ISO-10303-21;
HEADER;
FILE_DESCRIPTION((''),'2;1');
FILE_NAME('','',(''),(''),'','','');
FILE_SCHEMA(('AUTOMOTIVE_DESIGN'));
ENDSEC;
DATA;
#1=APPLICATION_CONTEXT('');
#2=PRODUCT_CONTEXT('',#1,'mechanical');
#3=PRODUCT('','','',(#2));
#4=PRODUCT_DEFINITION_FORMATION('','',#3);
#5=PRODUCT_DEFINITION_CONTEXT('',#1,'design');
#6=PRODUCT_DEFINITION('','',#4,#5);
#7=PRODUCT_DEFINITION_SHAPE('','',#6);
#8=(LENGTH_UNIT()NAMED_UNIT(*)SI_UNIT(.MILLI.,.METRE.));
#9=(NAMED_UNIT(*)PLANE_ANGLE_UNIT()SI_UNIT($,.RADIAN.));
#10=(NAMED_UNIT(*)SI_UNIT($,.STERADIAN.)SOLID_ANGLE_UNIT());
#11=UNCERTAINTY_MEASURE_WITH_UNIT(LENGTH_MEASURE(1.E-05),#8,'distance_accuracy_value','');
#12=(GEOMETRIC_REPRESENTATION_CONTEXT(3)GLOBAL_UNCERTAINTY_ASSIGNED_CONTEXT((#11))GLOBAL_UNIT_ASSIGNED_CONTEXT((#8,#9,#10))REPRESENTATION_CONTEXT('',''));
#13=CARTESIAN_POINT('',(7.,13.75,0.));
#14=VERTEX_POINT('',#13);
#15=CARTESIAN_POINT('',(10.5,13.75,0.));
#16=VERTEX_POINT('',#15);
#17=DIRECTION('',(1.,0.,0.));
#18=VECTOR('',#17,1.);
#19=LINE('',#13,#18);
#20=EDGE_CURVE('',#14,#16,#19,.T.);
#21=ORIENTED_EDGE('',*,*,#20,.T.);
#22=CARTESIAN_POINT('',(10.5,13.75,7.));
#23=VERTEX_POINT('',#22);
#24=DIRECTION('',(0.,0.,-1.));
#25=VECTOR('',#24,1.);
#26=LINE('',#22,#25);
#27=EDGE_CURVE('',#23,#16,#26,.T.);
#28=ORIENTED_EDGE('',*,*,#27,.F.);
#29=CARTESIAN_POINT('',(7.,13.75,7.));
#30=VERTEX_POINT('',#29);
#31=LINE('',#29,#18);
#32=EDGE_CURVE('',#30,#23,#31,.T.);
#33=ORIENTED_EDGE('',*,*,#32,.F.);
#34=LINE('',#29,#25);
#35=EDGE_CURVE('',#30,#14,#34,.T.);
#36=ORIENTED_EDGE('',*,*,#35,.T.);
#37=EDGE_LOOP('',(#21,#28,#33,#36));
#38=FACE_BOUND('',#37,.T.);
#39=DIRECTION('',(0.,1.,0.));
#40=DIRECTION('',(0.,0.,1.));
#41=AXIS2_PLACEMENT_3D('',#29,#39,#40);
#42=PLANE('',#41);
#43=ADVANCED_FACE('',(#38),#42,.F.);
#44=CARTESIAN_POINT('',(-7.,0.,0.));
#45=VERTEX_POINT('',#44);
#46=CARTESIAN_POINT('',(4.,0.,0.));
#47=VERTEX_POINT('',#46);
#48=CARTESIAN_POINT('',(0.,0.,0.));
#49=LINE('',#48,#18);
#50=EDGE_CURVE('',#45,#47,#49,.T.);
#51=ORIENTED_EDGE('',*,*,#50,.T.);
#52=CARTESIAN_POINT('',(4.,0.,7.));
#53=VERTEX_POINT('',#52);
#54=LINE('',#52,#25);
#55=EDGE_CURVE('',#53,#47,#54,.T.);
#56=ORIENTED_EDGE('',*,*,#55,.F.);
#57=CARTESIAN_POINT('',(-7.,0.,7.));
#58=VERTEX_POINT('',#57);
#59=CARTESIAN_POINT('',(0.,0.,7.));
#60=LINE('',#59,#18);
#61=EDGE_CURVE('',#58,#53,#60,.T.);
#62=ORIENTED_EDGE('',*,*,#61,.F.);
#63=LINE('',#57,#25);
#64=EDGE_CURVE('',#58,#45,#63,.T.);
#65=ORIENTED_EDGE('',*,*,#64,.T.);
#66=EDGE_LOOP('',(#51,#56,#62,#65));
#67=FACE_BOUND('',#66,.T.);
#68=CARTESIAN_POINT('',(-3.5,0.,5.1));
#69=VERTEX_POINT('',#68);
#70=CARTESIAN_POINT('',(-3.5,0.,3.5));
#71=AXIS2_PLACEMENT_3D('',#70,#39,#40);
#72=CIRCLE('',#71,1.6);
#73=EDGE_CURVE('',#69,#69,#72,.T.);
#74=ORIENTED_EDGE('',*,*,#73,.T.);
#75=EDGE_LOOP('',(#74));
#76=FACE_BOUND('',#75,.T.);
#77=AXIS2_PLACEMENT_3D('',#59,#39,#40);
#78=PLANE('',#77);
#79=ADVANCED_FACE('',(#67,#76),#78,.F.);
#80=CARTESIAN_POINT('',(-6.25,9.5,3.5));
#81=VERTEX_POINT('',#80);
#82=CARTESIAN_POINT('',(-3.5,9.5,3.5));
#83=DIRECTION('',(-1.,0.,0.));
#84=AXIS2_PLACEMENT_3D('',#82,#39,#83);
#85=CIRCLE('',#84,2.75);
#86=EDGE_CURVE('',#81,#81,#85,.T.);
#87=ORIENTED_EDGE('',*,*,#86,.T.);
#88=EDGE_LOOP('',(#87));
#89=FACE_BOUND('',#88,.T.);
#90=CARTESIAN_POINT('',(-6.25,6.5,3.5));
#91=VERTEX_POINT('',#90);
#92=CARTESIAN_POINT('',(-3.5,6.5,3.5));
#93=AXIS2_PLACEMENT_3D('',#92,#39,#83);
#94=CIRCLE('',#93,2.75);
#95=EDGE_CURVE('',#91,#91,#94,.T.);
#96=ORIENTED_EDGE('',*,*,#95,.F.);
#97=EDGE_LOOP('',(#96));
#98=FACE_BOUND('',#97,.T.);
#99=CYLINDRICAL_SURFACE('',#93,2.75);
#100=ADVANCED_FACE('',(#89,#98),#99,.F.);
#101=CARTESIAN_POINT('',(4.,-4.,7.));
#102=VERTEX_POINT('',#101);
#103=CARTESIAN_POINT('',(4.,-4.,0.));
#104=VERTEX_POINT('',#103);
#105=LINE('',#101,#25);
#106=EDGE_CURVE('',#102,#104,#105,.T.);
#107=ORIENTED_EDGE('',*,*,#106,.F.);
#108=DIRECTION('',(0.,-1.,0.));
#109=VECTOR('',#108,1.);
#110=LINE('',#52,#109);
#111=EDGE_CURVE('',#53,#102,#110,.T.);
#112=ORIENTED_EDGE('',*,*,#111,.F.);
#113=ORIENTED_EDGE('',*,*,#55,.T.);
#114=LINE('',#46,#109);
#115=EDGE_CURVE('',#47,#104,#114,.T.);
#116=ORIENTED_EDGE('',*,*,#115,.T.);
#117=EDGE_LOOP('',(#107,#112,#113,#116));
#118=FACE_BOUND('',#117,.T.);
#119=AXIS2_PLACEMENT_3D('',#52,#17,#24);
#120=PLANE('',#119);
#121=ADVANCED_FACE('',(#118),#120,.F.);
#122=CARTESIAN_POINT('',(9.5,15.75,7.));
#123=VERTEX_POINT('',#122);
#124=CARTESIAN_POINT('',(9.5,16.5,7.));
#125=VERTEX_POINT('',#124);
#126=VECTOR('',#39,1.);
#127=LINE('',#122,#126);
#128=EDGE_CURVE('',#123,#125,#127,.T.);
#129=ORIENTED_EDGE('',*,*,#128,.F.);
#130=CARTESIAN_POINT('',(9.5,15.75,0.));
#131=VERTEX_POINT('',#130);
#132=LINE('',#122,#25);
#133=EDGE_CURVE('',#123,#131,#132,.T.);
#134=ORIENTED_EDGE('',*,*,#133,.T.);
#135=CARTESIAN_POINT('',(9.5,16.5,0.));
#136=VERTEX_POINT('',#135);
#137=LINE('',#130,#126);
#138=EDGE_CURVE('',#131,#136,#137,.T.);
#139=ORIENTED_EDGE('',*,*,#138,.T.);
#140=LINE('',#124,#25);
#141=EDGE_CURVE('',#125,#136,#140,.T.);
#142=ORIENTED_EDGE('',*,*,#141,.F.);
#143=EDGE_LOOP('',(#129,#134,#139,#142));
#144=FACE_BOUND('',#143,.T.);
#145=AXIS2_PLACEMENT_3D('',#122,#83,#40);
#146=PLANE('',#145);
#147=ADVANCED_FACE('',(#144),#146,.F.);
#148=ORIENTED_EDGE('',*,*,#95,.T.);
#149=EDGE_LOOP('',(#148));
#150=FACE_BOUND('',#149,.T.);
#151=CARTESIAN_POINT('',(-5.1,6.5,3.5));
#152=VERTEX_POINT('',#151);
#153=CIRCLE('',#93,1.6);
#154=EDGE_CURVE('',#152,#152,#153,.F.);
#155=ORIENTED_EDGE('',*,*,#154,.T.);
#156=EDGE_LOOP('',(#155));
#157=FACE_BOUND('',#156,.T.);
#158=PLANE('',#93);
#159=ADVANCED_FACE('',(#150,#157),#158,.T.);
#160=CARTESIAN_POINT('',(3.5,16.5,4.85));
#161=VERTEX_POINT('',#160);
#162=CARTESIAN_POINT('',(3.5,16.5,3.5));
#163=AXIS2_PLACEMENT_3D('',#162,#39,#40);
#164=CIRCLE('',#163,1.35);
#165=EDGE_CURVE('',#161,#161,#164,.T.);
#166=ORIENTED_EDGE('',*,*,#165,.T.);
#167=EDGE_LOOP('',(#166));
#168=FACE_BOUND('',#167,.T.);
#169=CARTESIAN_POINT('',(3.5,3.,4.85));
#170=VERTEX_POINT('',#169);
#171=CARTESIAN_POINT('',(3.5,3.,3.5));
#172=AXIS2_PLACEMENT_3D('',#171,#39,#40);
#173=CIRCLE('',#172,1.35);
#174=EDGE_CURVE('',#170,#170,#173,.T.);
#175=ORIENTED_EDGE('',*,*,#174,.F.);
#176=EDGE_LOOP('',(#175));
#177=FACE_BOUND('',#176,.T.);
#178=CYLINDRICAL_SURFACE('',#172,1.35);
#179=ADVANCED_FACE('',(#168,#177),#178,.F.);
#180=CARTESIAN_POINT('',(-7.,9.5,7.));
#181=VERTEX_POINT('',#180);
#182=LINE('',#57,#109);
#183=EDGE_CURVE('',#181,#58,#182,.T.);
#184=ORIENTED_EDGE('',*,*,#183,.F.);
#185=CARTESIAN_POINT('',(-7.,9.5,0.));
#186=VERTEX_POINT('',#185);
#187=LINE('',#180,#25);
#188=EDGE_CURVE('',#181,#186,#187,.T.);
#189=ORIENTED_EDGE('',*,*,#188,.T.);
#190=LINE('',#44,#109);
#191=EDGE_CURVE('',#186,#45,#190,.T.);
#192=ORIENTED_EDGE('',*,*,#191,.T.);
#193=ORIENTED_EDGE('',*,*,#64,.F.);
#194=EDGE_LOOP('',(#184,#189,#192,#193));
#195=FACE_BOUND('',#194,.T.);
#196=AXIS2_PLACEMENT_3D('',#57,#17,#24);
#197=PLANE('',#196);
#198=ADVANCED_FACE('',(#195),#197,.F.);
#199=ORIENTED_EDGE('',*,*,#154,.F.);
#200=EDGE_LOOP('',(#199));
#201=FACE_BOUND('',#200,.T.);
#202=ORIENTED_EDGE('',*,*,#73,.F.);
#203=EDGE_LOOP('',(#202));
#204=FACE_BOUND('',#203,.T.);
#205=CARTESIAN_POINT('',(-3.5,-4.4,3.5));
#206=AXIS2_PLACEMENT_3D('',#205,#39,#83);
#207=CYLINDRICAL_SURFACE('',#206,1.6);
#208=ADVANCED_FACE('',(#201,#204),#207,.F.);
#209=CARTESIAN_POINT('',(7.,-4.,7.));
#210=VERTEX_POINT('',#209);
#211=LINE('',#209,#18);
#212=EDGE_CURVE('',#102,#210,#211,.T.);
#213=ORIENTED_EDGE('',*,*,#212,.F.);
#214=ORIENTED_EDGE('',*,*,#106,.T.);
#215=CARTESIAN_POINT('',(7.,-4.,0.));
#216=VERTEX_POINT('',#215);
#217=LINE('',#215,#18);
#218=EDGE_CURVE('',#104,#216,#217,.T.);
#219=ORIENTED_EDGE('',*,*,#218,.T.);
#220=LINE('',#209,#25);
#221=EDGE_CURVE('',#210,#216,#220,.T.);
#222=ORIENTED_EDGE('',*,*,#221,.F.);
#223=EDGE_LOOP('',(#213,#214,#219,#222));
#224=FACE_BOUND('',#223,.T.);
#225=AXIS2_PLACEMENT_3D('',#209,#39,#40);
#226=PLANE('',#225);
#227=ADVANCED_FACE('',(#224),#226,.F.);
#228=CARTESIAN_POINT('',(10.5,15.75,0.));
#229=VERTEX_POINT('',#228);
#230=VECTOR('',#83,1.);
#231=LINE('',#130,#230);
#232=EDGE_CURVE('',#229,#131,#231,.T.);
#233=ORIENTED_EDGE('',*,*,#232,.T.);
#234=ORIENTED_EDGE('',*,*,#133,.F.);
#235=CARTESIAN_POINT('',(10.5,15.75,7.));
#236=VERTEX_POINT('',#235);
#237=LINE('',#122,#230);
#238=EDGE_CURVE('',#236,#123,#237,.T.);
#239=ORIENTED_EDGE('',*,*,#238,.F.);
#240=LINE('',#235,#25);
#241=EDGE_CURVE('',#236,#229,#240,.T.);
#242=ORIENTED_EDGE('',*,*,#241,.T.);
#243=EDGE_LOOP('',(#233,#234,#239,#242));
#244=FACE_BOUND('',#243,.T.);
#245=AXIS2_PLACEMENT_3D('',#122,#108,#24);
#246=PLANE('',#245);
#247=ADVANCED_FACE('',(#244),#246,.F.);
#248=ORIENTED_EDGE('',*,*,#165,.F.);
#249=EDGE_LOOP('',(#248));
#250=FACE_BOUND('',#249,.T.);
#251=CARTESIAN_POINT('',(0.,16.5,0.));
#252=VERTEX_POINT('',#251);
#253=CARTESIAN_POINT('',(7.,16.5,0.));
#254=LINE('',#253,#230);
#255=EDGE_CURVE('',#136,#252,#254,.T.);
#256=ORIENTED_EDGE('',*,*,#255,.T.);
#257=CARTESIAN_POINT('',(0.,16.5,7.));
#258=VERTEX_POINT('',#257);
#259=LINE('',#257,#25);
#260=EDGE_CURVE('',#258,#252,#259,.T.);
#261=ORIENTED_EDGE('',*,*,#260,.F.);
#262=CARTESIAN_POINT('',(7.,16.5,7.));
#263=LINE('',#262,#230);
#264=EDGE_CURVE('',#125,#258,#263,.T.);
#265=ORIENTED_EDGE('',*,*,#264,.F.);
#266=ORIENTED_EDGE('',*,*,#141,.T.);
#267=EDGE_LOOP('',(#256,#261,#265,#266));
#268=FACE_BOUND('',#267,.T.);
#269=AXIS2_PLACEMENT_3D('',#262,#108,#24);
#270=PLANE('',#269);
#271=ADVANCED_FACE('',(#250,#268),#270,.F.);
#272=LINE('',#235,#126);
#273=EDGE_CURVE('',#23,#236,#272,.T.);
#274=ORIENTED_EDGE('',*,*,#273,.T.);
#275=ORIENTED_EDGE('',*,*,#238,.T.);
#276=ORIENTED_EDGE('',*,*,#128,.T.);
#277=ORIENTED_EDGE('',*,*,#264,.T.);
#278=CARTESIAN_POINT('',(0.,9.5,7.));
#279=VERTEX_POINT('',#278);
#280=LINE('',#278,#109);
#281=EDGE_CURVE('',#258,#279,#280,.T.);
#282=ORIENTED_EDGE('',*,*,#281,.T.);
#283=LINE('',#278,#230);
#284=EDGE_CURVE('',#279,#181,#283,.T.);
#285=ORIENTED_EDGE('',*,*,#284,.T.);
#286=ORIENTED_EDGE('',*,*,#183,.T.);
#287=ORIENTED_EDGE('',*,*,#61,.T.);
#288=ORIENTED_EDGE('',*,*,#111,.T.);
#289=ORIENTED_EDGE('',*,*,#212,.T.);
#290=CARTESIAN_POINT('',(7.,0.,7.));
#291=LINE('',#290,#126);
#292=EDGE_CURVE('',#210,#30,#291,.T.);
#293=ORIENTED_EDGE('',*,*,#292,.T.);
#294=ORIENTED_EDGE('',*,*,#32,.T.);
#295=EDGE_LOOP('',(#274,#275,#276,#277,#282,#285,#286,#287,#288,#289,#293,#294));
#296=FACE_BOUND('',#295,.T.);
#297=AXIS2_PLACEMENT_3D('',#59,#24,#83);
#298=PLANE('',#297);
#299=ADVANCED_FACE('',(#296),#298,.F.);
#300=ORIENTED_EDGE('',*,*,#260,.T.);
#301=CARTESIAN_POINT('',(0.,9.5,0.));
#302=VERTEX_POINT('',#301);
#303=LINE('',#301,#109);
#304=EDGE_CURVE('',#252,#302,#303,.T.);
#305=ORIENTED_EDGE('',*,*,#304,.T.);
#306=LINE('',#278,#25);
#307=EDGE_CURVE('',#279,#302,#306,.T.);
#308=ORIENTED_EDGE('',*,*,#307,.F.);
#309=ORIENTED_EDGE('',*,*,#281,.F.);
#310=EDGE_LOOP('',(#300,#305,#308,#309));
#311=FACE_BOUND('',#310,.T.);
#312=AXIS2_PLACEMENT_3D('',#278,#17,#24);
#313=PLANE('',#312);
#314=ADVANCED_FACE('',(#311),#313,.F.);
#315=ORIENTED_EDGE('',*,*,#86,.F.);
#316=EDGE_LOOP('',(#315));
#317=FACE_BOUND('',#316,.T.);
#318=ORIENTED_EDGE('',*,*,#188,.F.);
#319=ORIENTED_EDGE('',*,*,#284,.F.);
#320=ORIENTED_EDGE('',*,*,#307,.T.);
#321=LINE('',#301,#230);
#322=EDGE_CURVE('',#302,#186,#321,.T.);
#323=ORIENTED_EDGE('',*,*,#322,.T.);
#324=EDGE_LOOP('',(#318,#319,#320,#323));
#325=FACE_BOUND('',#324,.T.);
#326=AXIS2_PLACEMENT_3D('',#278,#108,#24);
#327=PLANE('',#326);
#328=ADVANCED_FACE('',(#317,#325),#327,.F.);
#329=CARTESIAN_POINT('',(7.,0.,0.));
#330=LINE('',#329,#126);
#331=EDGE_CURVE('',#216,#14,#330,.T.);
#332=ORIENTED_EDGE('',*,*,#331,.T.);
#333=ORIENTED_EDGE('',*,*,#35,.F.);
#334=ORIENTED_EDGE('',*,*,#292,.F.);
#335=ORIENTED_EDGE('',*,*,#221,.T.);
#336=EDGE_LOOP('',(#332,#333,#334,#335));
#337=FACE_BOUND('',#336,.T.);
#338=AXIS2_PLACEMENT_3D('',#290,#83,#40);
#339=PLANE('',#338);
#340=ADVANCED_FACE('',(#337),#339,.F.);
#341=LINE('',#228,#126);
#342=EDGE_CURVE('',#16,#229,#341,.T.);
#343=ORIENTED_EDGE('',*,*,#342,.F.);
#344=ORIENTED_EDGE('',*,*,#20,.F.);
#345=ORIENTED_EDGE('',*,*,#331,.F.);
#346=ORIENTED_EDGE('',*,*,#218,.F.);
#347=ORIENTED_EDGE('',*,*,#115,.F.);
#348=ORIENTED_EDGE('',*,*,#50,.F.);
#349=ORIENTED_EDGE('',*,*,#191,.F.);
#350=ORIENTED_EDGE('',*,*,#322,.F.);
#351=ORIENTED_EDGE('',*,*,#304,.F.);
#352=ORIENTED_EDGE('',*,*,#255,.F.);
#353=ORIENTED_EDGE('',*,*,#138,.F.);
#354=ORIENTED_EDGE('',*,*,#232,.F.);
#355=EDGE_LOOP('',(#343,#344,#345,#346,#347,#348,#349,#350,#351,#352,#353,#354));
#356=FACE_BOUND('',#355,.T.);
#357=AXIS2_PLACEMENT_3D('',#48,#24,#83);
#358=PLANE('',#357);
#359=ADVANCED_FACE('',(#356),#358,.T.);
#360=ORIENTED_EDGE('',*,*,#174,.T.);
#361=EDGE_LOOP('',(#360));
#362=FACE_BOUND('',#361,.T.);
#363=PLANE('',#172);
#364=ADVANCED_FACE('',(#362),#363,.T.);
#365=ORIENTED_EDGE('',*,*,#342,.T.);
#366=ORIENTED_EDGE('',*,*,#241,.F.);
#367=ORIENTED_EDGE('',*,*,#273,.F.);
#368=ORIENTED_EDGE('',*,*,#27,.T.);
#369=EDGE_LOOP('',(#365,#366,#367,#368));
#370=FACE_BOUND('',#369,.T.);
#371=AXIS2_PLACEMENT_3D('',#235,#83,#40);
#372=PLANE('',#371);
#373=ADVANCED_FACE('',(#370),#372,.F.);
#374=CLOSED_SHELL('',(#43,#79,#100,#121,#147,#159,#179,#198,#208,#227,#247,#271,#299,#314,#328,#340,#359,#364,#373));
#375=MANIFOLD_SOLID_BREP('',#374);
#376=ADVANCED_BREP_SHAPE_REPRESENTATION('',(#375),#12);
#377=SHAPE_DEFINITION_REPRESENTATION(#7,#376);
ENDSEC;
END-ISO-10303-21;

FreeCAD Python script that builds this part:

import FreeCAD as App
import Part
import Sketcher
from FreeCAD import Vector


def add_polygon(sketch, points):
    """Adds a closed chain of lines whose ends are joined by coincident constraints."""
    first, n = sketch.GeometryCount, len(points)
    for a, b in zip(points, points[1:] + points[:1]):
        sketch.addGeometry(Part.LineSegment(App.Vector(*a, 0), App.Vector(*b, 0)), False)
    for i in range(n):
        sketch.addConstraint(Sketcher.Constraint("Coincident", first + i, 2, first + (i + 1) % n, 1))

doc = App.newDocument("Part")
body = doc.addObject("PartDesign::Body", "Body")

sketch1 = body.newObject("Sketcher::SketchObject", "Sketch")
sketch1.AttachmentSupport = (doc.getObject("XY_Plane"), [""])
sketch1.MapMode = "FlatFace"
add_polygon(sketch1, [(4, 0), (4, -4), (7, -4), (7, 13.8), (10.5, 13.8), (10.5, 15.8), (9.5, 15.8), (9.5, 16.5), (0, 16.5), (0, 9.5), (-7, 9.5), (-7, 0)])
sketch1.addConstraint(Sketcher.Constraint("Vertical", 0))
sketch1.addConstraint(Sketcher.Constraint("Horizontal", 1))
sketch1.addConstraint(Sketcher.Constraint("Vertical", 2))
sketch1.addConstraint(Sketcher.Constraint("Horizontal", 3))
sketch1.addConstraint(Sketcher.Constraint("Vertical", 4))
sketch1.addConstraint(Sketcher.Constraint("Horizontal", 5))
sketch1.addConstraint(Sketcher.Constraint("Vertical", 6))
sketch1.addConstraint(Sketcher.Constraint("Horizontal", 7))
sketch1.addConstraint(Sketcher.Constraint("Vertical", 8))
sketch1.addConstraint(Sketcher.Constraint("Horizontal", 9))
sketch1.addConstraint(Sketcher.Constraint("Vertical", 10))
sketch1.addConstraint(Sketcher.Constraint("Horizontal", 11))
sketch1.addConstraint(Sketcher.Constraint("PointOnObject", 7, 2, -2))
sketch1.addConstraint(Sketcher.Constraint("PointOnObject", 10, 2, -1))
sketch1.addConstraint(Sketcher.Constraint("Equal", 9, 8))
sketch1.addConstraint(Sketcher.Constraint("Equal", 7, 10))
sketch1.addConstraint(Sketcher.Constraint("DistanceX", 1, 1, 1, 2, 3.0))
sketch1.addConstraint(Sketcher.Constraint("DistanceX", 5, 2, 5, 1, 1.0))
sketch1.addConstraint(Sketcher.Constraint("DistanceX", 9, 2, 9, 1, 7.0))
sketch1.addConstraint(Sketcher.Constraint("DistanceX", 11, 1, 11, 2, 11.0))
sketch1.addConstraint(Sketcher.Constraint("DistanceY", 0, 2, 0, 1, 4.0))
sketch1.addConstraint(Sketcher.Constraint("DistanceY", 4, 1, 4, 2, 2.0))
sketch1.addConstraint(Sketcher.Constraint("DistanceX", 3, 1, 3, 2, 3.5))
sketch1.addConstraint(Sketcher.Constraint("DistanceY", 2, 1, 2, 2, 17.75))
pad1 = body.newObject("PartDesign::Pad", "Pad")
pad1.Profile = sketch1
pad1.Length = 7

sketch2 = body.newObject("Sketcher::SketchObject", "Sketch001")
sketch2.AttachmentSupport = (doc.getObject("XZ_Plane"), [""])
sketch2.MapMode = "FlatFace"
sketch2.AttachmentOffset = App.Placement(Vector(0, 0, -16.5), App.Rotation())
sketch2.addGeometry(Part.Circle(Vector(3.5, 3.5, 0), Vector(0, 0, 1), 1.4), False)
sketch2.addConstraint(Sketcher.Constraint("Diameter", 0, 2.7))
sketch2.addConstraint(Sketcher.Constraint("DistanceX", -1, 1, 0, 3, 3.5))
sketch2.addConstraint(Sketcher.Constraint("DistanceY", -1, 1, 0, 3, 3.5))
pocket1 = body.newObject("PartDesign::Pocket", "Pocket")
pocket1.Profile = sketch2
pocket1.Length = 13.5
pocket1.Reversed = True

sketch3 = body.newObject("Sketcher::SketchObject", "Sketch002")
sketch3.AttachmentSupport = (doc.getObject("XZ_Plane"), [""])
sketch3.MapMode = "FlatFace"
sketch3.AttachmentOffset = App.Placement(Vector(0, 0, -9.5), App.Rotation())
sketch3.addGeometry(Part.Circle(Vector(-3.5, 3.5, 0), Vector(0, 0, 1), 1.6), False)
sketch3.addConstraint(Sketcher.Constraint("Diameter", 0, 3.2))
sketch3.addConstraint(Sketcher.Constraint("DistanceX", 0, 3, -1, 1, 3.5))
sketch3.addConstraint(Sketcher.Constraint("DistanceY", -1, 1, 0, 3, 3.5))
pocket2 = body.newObject("PartDesign::Pocket", "Pocket001")
pocket2.Profile = sketch3
pocket2.Length = 13.9
pocket2.Reversed = True

sketch4 = body.newObject("Sketcher::SketchObject", "Sketch003")
sketch4.AttachmentSupport = (doc.getObject("XZ_Plane"), [""])
sketch4.MapMode = "FlatFace"
sketch4.AttachmentOffset = App.Placement(Vector(0, 0, -9.5), App.Rotation())
sketch4.addGeometry(Part.Circle(Vector(-3.5, 3.5, 0), Vector(0, 0, 1), 2.8), False)
sketch4.addConstraint(Sketcher.Constraint("Diameter", 0, 5.5))
sketch4.addConstraint(Sketcher.Constraint("DistanceX", 0, 3, -1, 1, 3.5))
sketch4.addConstraint(Sketcher.Constraint("DistanceY", -1, 1, 0, 3, 3.5))
pocket3 = body.newObject("PartDesign::Pocket", "Pocket002")
pocket3.Profile = sketch4
pocket3.Length = 3
pocket3.Reversed = True

doc.recompute()
